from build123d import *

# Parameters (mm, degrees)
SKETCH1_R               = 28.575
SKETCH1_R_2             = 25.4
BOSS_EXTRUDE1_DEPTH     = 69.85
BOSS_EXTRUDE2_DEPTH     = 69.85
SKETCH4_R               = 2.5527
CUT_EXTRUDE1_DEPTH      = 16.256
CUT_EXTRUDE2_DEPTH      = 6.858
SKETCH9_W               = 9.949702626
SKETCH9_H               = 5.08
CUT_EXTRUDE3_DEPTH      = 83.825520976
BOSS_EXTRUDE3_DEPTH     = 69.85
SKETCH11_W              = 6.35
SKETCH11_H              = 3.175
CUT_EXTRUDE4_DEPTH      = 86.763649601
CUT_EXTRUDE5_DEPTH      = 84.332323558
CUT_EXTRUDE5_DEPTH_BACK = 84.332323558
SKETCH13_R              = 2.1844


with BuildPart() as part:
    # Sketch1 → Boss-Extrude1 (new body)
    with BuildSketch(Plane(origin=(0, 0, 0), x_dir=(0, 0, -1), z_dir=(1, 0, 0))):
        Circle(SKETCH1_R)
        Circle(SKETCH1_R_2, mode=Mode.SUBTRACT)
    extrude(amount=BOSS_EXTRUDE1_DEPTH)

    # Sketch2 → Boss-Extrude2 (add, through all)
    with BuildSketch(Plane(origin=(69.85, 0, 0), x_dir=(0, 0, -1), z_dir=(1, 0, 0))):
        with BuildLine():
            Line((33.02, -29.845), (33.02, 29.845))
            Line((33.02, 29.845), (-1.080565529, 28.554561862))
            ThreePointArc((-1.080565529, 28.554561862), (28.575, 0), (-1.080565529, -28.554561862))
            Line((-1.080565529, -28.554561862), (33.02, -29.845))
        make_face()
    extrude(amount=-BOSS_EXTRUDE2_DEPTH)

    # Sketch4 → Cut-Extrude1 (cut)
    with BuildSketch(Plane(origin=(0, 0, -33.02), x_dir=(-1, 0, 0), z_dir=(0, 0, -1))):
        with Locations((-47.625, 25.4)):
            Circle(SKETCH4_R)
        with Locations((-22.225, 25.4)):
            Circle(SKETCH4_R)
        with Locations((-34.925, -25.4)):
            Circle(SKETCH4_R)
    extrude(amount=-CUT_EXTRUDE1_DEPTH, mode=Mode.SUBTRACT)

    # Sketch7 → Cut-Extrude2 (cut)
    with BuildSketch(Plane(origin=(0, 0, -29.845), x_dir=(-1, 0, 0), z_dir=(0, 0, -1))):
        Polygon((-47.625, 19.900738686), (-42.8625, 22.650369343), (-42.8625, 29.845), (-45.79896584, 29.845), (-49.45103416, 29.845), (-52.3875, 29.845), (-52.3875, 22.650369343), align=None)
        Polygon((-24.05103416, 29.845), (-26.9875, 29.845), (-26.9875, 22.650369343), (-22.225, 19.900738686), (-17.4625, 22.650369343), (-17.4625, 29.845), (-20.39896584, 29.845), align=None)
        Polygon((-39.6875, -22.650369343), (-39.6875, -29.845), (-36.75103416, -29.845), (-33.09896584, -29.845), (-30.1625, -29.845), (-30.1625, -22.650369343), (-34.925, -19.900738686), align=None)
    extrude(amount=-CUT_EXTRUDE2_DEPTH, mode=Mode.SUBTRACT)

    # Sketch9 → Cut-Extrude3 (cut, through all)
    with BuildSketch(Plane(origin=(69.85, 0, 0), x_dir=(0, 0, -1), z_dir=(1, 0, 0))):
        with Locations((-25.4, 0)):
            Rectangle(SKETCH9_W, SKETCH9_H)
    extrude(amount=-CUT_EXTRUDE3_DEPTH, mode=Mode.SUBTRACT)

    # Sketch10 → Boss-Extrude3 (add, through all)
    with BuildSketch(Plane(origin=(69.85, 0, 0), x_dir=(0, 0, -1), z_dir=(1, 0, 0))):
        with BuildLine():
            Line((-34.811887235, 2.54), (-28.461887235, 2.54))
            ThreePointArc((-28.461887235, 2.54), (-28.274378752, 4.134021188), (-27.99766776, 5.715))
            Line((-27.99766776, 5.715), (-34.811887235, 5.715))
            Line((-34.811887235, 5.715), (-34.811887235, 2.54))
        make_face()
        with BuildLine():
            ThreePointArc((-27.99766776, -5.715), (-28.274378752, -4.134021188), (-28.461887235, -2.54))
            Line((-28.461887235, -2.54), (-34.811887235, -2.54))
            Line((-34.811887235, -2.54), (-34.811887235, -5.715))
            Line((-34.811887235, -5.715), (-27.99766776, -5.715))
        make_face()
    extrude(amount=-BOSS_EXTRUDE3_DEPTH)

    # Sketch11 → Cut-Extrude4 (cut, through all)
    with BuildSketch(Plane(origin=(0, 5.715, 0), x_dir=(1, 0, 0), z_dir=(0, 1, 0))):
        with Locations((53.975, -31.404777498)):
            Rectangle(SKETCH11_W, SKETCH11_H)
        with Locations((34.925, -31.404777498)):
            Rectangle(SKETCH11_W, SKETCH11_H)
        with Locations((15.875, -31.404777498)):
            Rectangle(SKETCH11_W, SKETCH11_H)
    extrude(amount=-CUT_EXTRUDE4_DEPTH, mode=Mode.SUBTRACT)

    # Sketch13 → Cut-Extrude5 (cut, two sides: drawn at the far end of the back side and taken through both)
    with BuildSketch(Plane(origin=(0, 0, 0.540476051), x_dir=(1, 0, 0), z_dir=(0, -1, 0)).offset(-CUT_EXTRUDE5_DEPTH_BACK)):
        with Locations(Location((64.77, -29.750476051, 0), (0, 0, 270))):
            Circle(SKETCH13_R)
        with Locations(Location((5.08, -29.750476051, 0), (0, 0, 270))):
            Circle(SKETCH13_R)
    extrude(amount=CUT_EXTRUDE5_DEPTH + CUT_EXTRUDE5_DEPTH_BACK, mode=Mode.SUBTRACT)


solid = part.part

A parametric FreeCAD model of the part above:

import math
import FreeCAD as App
import Part
import Sketcher
Q = App.Units.Quantity


def add_polygon(sketch, points):
    """Adds a closed chain of lines whose ends are joined by coincident constraints."""
    first, n = sketch.GeometryCount, len(points)
    for a, b in zip(points, points[1:] + points[:1]):
        sketch.addGeometry(Part.LineSegment(App.Vector(*a, 0), App.Vector(*b, 0)), False)
    for i in range(n):
        sketch.addConstraint(Sketcher.Constraint("Coincident", first + i, 2, first + (i + 1) % n, 1))

doc = App.newDocument("Part")
params = doc.addObject("Spreadsheet::Sheet", "Params")
for row, (alias, value) in enumerate([
    ("sketch1_diameter", "2 in"),
    ("sketch1_diameter2", "2.25 in"),
    ("pad1_length", "2.75 in"),
    ("sketch2_radius", "1.125 in"),
    ("sketch2_width", "2.35 in"),
    ("sketch3_diameter", "0.201 in"),
    ("pocket1_length", "0.64 in"),
    ("sketch4_width", "0.375 in"),
    ("pocket2_length", "0.27 in"),
    ("sketch5_width", "0.2 in"),
    ("sketch6_radius", "1.125 in"),
    ("sketch6_height", "0.25 in"),
    ("sketch6_width", "0.125 in"),
    ("pad3_length", "2.75 in"),
    ("sketch7_width", "0.25 in"),
    ("sketch7_height", "0.125 in"),
    ("sketch8_diameter", "0.172 in"),
], start=1):
    params.set(f"A{row}", alias)
    params.set(f"B{row}", "=" + value)
    params.setAlias(f"B{row}", alias)

body = doc.addObject("PartDesign::Body", "Body")

sketch1 = doc.addObject("Sketcher::SketchObject", "Sketch")
body.addObject(sketch1)
sketch1.AttachmentSupport = (doc.YZ_Plane, [""])
sketch1.MapMode = "FlatFace"
sketch1.addGeometry([
    Part.Circle(App.Vector(0, 0, 0), App.Vector(0, 0, 1), 28.575),
    Part.Circle(App.Vector(0, 0, 0), App.Vector(0, 0, 1), 25.4),
], False)
sketch1.addConstraint([
    Sketcher.Constraint("Coincident", 0, 3, -1, 1),
    Sketcher.Constraint("Coincident", 1, 3, -1, 1),
    Sketcher.Constraint("Diameter", 1, Q("2 in")),
    Sketcher.Constraint("Diameter", 0, Q("2.25 in")),
])
sketch1.setExpression("Constraints[2]", "Params.sketch1_diameter")
sketch1.setExpression("Constraints[3]", "Params.sketch1_diameter2")
pad1 = doc.addObject("PartDesign::Pad", "Pad")
body.addObject(pad1)
pad1.Profile = sketch1
pad1.setExpression("Length", "Params.pad1_length")

sketch2 = doc.addObject("Sketcher::SketchObject", "Sketch001")
body.addObject(sketch2)
sketch2.AttachmentSupport = (doc.YZ_Plane, [""])
sketch2.MapMode = "FlatFace"
sketch2.AttachmentOffset = App.Placement(App.Vector(0, 0, 2.75 * 25.4), App.Rotation())
sketch2.addGeometry([
    Part.LineSegment(App.Vector(-29.845, -33.02, 0), App.Vector(29.845, -33.02, 0)),
    Part.LineSegment(App.Vector(29.845, -33.02, 0), App.Vector(28.554562, 1.080566, 0)),
    Part.ArcOfCircle(Part.Circle(App.Vector(0, 0, 0), App.Vector(0, 0, 1), 28.575), math.radians(177.83284), math.radians(362.16716)),
    Part.LineSegment(App.Vector(-28.554562, 1.080566, 0), App.Vector(-29.845, -33.02, 0)),
], False)
sketch2.addConstraint([
    Sketcher.Constraint("Coincident", 0, 2, 1, 1),
    Sketcher.Constraint("Tangent", 1, 2, 2, 2),
    Sketcher.Constraint("Tangent", 2, 1, 3, 1),
    Sketcher.Constraint("Coincident", 3, 2, 0, 1),
    Sketcher.Constraint("Horizontal", 0),
    Sketcher.Constraint("Coincident", 2, 3, -1, 1),
    Sketcher.Constraint("Horizontal", 1, 2, 2, 1),
    Sketcher.Constraint("Radius", 2, Q("1.125 in")),
    Sketcher.Constraint("DistanceX", 0, 1, 0, 2, Q("2.35 in")),
    Sketcher.Constraint("DistanceY", 0, 2, -1, 1, Q("1.3 in")),
])
sketch2.setExpression("Constraints[7]", "Params.sketch2_radius")
sketch2.setExpression("Constraints[8]", "Params.sketch2_width")
pad2 = doc.addObject("PartDesign::Pad", "Pad001")
body.addObject(pad2)
pad2.Profile = sketch2
pad2.Type = "UpToLast"
pad2.Reversed = True

sketch3 = doc.addObject("Sketcher::SketchObject", "Sketch002")
body.addObject(sketch3)
sketch3.AttachmentSupport = (doc.XY_Plane, [""])
sketch3.MapMode = "FlatFace"
sketch3.AttachmentOffset = App.Placement(App.Vector(0, 0, -1.3 * 25.4), App.Rotation())
sketch3.addGeometry([
    Part.Circle(App.Vector(47.625, 25.4, 0), App.Vector(0, 0, 1), 2.5527),
    Part.Circle(App.Vector(22.225, 25.4, 0), App.Vector(0, 0, 1), 2.5527),
    Part.Circle(App.Vector(34.925, -25.4, 0), App.Vector(0, 0, 1), 2.5527),
], False)
sketch3.addConstraint([
    Sketcher.Constraint("Equal", 0, 1),
    Sketcher.Constraint("Equal", 1, 2),
    Sketcher.Constraint("Horizontal", 0, 3, 1, 3),
    Sketcher.Constraint("Diameter", 0, Q("0.201 in")),
    Sketcher.Constraint("DistanceY", -1, 1, 0, 3, Q("1 in")),
    Sketcher.Constraint("DistanceY", 2, 3, -1, 1, Q("1 in")),
    Sketcher.Constraint("DistanceX", 1, 3, 0, 3, Q("1 in")),
    Sketcher.Constraint("DistanceX", 2, 3, 0, 3, Q("0.5 in")),
    Sketcher.Constraint("DistanceX", -1, 1, 0, 3, Q("1.875 in")),
])
sketch3.setExpression("Constraints[3]", "Params.sketch3_diameter")
pocket1 = doc.addObject("PartDesign::Pocket", "Pocket")
body.addObject(pocket1)
pocket1.Profile = sketch3
pocket1.setExpression("Length", "Params.pocket1_length")
pocket1.Reversed = True

sketch4 = doc.addObject("Sketcher::SketchObject", "Sketch003")
body.addObject(sketch4)
sketch4.AttachmentSupport = (doc.XY_Plane, [""])
sketch4.MapMode = "FlatFace"
sketch4.AttachmentOffset = App.Placement(App.Vector(0, 0, -1.175 * 25.4), App.Rotation())
add_polygon(sketch4, [(47.625, 19.900739), (42.8625, 22.650369), (42.8625, 29.845), (52.3875, 29.845), (52.3875, 22.650369)])
add_polygon(sketch4, [(26.9875, 29.845), (26.9875, 22.650369), (22.225, 19.900739), (17.4625, 22.650369), (17.4625, 29.845)])
add_polygon(sketch4, [(39.6875, -22.650369), (39.6875, -29.845), (30.1625, -29.845), (30.1625, -22.650369), (34.925, -19.900739)])
sketch4.addConstraint([
    Sketcher.Constraint("Vertical", 1),
    Sketcher.Constraint("Horizontal", 2),
    Sketcher.Constraint("Vertical", 3),
    Sketcher.Constraint("Vertical", 5),
    Sketcher.Constraint("Vertical", 8),
    Sketcher.Constraint("Horizontal", 9),
    Sketcher.Constraint("Vertical", 10),
    Sketcher.Constraint("Horizontal", 11),
    Sketcher.Constraint("Vertical", 12),
    Sketcher.Constraint("Parallel", 4, 6),
    Sketcher.Constraint("Parallel", 0, 7),
    Sketcher.Constraint("Parallel", 6, 13),
    Sketcher.Constraint("Parallel", 7, 14),
    Sketcher.Constraint("Horizontal", 0, 2, 3, 2),
    Sketcher.Constraint("Horizontal", 3, 2, 5, 2),
    Sketcher.Constraint("Horizontal", 4, 2, 6, 2),
    Sketcher.Constraint("Horizontal", 5, 2, 7, 2),
    Sketcher.Constraint("Horizontal", 2, 2, 8, 2),
    Sketcher.Constraint("Horizontal", 12, 2, 14, 2),
    Sketcher.Constraint("Equal", 9, 11),
    Sketcher.Constraint("Equal", 8, 10),
    Sketcher.Constraint("Equal", 0, 4),
    Sketcher.Constraint("Angle", 0, Q("150 deg")),
    Sketcher.Constraint("DistanceX", 5, 2, 3, 2, Q("1 in")),
    Sketcher.Constraint("DistanceX", 10, 2, 3, 2, Q("0.5 in")),
    Sketcher.Constraint("DistanceX", 2, 1, 2, 2, Q("0.375 in")),
    Sketcher.Constraint("DistanceX", -1, 1, 0, 2, Q("1.6875 in")),
    Sketcher.Constraint("DistanceY", -1, 1, 1, 2, Q("1.175 in")),
    Sketcher.Constraint("DistanceY", 10, 2, -1, 1, Q("1.175 in")),
    Sketcher.Constraint("DistanceY", 1, 1, 1, 2, Q("7.194631 mm")),
])
sketch4.setExpression("Constraints[40]", "Params.sketch4_width")
pocket2 = doc.addObject("PartDesign::Pocket", "Pocket001")
body.addObject(pocket2)
pocket2.Profile = sketch4
pocket2.setExpression("Length", "Params.pocket2_length")
pocket2.Reversed = True

sketch5 = doc.addObject("Sketcher::SketchObject", "Sketch004")
body.addObject(sketch5)
sketch5.AttachmentSupport = (doc.YZ_Plane, [""])
sketch5.MapMode = "FlatFace"
sketch5.AttachmentOffset = App.Placement(App.Vector(0, 0, 2.75 * 25.4), App.Rotation())
add_polygon(sketch5, [(2.54, 30.374851), (-2.54, 30.374851), (-2.54, 20.425149), (2.54, 20.425149)])
sketch5.addConstraint([
    Sketcher.Constraint("Horizontal", 0),
    Sketcher.Constraint("Vertical", 1),
    Sketcher.Constraint("Horizontal", 2),
    Sketcher.Constraint("Vertical", 3),
    Sketcher.Constraint("DistanceX", 0, 2, 0, 1, Q("0.2 in")),
    Sketcher.Constraint("DistanceX", 0, 2, -1, 1, Q("0.1 in")),
    Sketcher.Constraint("DistanceY", 1, 2, 1, 1, Q("9.949703 mm")),
    Sketcher.Constraint("DistanceY", -1, 1, 0, 2, Q("30.374851 mm")),
])
sketch5.setExpression("Constraints[8]", "Params.sketch5_width")
pocket3 = doc.addObject("PartDesign::Pocket", "Pocket002")
body.addObject(pocket3)
pocket3.Profile = sketch5
pocket3.Type = "ThroughAll"

sketch6 = doc.addObject("Sketcher::SketchObject", "Sketch005")
body.addObject(sketch6)
sketch6.AttachmentSupport = (doc.YZ_Plane, [""])
sketch6.MapMode = "FlatFace"
sketch6.AttachmentOffset = App.Placement(App.Vector(0, 0, 2.75 * 25.4), App.Rotation())
sketch6.addGeometry([
    Part.LineSegment(App.Vector(2.54, 34.811887, 0), App.Vector(2.54, 28.461887, 0)),
    Part.ArcOfCircle(Part.Circle(App.Vector(0, 0, 0), App.Vector(0, 0, 1), 28.575), math.radians(78.463041), math.radians(84.900311)),
    Part.LineSegment(App.Vector(5.715, 27.997668, 0), App.Vector(5.715, 34.811887, 0)),
    Part.LineSegment(App.Vector(5.715, 34.811887, 0), App.Vector(2.54, 34.811887, 0)),
    Part.ArcOfCircle(Part.Circle(App.Vector(0, 0, 0), App.Vector(0, 0, 1), 28.575), math.radians(95.099689), math.radians(101.536959)),
    Part.LineSegment(App.Vector(-2.54, 28.461887, 0), App.Vector(-2.54, 34.811887, 0)),
    Part.LineSegment(App.Vector(-2.54, 34.811887, 0), App.Vector(-5.715, 34.811887, 0)),
    Part.LineSegment(App.Vector(-5.715, 34.811887, 0), App.Vector(-5.715, 27.997668, 0)),
], False)
sketch6.addConstraint([
    Sketcher.Constraint("Coincident", 0, 2, 1, 2),
    Sketcher.Constraint("Coincident", 1, 1, 2, 1),
    Sketcher.Constraint("Coincident", 2, 2, 3, 1),
    Sketcher.Constraint("Coincident", 3, 2, 0, 1),
    Sketcher.Constraint("Coincident", 4, 1, 5, 1),
    Sketcher.Constraint("Coincident", 5, 2, 6, 1),
    Sketcher.Constraint("Coincident", 6, 2, 7, 1),
    Sketcher.Constraint("Coincident", 7, 2, 4, 2),
    Sketcher.Constraint("Vertical", 0),
    Sketcher.Constraint("Vertical", 2),
    Sketcher.Constraint("Horizontal", 3),
    Sketcher.Constraint("Vertical", 5),
    Sketcher.Constraint("Horizontal", 6),
    Sketcher.Constraint("Vertical", 7),
    Sketcher.Constraint("Coincident", 1, 3, -1, 1),
    Sketcher.Constraint("Coincident", 4, 3, -1, 1),
    Sketcher.Constraint("Equal", 1, 4),
    Sketcher.Constraint("Symmetric", 3, 2, 5, 2, -2),
    Sketcher.Constraint("Horizontal", 1, 1, 7, 2),
    Sketcher.Constraint("Radius", 1, Q("1.125 in")),
    Sketcher.Constraint("DistanceY", 0, 2, 0, 1, Q("0.25 in")),
    Sketcher.Constraint("DistanceX", -1, 1, 0, 2, Q("0.1 in")),
    Sketcher.Constraint("DistanceX", 3, 2, 3, 1, Q("0.125 in")),
])
sketch6.setExpression("Constraints[19]", "Params.sketch6_radius")
sketch6.setExpression("Constraints[20]", "Params.sketch6_height")
sketch6.setExpression("Constraints[22]", "Params.sketch6_width")
pad3 = doc.addObject("PartDesign::Pad", "Pad002")
body.addObject(pad3)
pad3.Profile = sketch6
pad3.setExpression("Length", "Params.pad3_length")
pad3.Reversed = True

sketch7 = doc.addObject("Sketcher::SketchObject", "Sketch006")
body.addObject(sketch7)
sketch7.AttachmentSupport = (doc.XZ_Plane, [""])
sketch7.MapMode = "FlatFace"
sketch7.AttachmentOffset = App.Placement(App.Vector(0, 0, -0.225 * 25.4), App.Rotation())
add_polygon(sketch7, [(50.8, 29.817277), (50.8, 32.992277), (57.15, 32.992277), (57.15, 29.817277)])
add_polygon(sketch7, [(31.75, 29.817277), (31.75, 32.992277), (38.1, 32.992277), (38.1, 29.817277)])
add_polygon(sketch7, [(12.7, 29.817277), (12.7, 32.992277), (19.05, 32.992277), (19.05, 29.817277)])
sketch7.addConstraint([
    Sketcher.Constraint("Vertical", 0),
    Sketcher.Constraint("Horizontal", 1),
    Sketcher.Constraint("Vertical", 2),
    Sketcher.Constraint("Horizontal", 3),
    Sketcher.Constraint("Vertical", 4),
    Sketcher.Constraint("Horizontal", 5),
    Sketcher.Constraint("Vertical", 6),
    Sketcher.Constraint("Horizontal", 7),
    Sketcher.Constraint("Vertical", 8),
    Sketcher.Constraint("Horizontal", 9),
    Sketcher.Constraint("Vertical", 10),
    Sketcher.Constraint("Horizontal", 11),
    Sketcher.Constraint("Horizontal", 1, 2, 4, 2),
    Sketcher.Constraint("Horizontal", 3, 2, 6, 2),
    Sketcher.Constraint("Horizontal", 5, 2, 8, 2),
    Sketcher.Constraint("Horizontal", 7, 2, 10, 2),
    Sketcher.Constraint("Equal", 3, 5),
    Sketcher.Constraint("Equal", 7, 9),
    Sketcher.Constraint("DistanceX", -1, 1, 0, 2, Q("2 in")),
    Sketcher.Constraint("DistanceX", 4, 2, 1, 2, Q("1 in")),
    Sketcher.Constraint("DistanceX", 8, 2, 5, 2, Q("1 in")),
    Sketcher.Constraint("DistanceX", 1, 1, 1, 2, Q("0.25 in")),
    Sketcher.Constraint("DistanceY", 0, 1, 0, 2, Q("0.125 in")),
    Sketcher.Constraint("DistanceY", -1, 1, 0, 2, Q("32.992277 mm")),
])
sketch7.setExpression("Constraints[33]", "Params.sketch7_width")
sketch7.setExpression("Constraints[34]", "Params.sketch7_height")
pocket4 = doc.addObject("PartDesign::Pocket", "Pocket003")
body.addObject(pocket4)
pocket4.Profile = sketch7
pocket4.Type = "ThroughAll"
pocket4.Reversed = True

sketch8 = doc.addObject("Sketcher::SketchObject", "Sketch007")
body.addObject(sketch8)
sketch8.AttachmentSupport = (doc.XZ_Plane, [""])
sketch8.MapMode = "FlatFace"
sketch8.addGeometry([
    Part.Circle(App.Vector(64.77, -29.21, 0), App.Vector(0, 0, 1), 2.1844),
    Part.Circle(App.Vector(5.08, -29.21, 0), App.Vector(0, 0, 1), 2.1844),
], False)
sketch8.addConstraint([
    Sketcher.Constraint("Equal", 0, 1),
    Sketcher.Constraint("Horizontal", 0, 3, 1, 3),
    Sketcher.Constraint("Diameter", 0, Q("0.172 in")),
    Sketcher.Constraint("DistanceX", -1, 1, 1, 3, Q("0.2 in")),
    Sketcher.Constraint("DistanceX", -1, 1, 0, 3, Q("2.55 in")),
    Sketcher.Constraint("DistanceY", 0, 3, -1, 1, Q("1.15 in")),
])
sketch8.setExpression("Constraints[2]", "Params.sketch8_diameter")
pocket5 = doc.addObject("PartDesign::Pocket", "Pocket004")
body.addObject(pocket5)
pocket5.Profile = sketch8
pocket5.Type = "ThroughAll"
pocket5.Midplane = True

doc.recompute()
